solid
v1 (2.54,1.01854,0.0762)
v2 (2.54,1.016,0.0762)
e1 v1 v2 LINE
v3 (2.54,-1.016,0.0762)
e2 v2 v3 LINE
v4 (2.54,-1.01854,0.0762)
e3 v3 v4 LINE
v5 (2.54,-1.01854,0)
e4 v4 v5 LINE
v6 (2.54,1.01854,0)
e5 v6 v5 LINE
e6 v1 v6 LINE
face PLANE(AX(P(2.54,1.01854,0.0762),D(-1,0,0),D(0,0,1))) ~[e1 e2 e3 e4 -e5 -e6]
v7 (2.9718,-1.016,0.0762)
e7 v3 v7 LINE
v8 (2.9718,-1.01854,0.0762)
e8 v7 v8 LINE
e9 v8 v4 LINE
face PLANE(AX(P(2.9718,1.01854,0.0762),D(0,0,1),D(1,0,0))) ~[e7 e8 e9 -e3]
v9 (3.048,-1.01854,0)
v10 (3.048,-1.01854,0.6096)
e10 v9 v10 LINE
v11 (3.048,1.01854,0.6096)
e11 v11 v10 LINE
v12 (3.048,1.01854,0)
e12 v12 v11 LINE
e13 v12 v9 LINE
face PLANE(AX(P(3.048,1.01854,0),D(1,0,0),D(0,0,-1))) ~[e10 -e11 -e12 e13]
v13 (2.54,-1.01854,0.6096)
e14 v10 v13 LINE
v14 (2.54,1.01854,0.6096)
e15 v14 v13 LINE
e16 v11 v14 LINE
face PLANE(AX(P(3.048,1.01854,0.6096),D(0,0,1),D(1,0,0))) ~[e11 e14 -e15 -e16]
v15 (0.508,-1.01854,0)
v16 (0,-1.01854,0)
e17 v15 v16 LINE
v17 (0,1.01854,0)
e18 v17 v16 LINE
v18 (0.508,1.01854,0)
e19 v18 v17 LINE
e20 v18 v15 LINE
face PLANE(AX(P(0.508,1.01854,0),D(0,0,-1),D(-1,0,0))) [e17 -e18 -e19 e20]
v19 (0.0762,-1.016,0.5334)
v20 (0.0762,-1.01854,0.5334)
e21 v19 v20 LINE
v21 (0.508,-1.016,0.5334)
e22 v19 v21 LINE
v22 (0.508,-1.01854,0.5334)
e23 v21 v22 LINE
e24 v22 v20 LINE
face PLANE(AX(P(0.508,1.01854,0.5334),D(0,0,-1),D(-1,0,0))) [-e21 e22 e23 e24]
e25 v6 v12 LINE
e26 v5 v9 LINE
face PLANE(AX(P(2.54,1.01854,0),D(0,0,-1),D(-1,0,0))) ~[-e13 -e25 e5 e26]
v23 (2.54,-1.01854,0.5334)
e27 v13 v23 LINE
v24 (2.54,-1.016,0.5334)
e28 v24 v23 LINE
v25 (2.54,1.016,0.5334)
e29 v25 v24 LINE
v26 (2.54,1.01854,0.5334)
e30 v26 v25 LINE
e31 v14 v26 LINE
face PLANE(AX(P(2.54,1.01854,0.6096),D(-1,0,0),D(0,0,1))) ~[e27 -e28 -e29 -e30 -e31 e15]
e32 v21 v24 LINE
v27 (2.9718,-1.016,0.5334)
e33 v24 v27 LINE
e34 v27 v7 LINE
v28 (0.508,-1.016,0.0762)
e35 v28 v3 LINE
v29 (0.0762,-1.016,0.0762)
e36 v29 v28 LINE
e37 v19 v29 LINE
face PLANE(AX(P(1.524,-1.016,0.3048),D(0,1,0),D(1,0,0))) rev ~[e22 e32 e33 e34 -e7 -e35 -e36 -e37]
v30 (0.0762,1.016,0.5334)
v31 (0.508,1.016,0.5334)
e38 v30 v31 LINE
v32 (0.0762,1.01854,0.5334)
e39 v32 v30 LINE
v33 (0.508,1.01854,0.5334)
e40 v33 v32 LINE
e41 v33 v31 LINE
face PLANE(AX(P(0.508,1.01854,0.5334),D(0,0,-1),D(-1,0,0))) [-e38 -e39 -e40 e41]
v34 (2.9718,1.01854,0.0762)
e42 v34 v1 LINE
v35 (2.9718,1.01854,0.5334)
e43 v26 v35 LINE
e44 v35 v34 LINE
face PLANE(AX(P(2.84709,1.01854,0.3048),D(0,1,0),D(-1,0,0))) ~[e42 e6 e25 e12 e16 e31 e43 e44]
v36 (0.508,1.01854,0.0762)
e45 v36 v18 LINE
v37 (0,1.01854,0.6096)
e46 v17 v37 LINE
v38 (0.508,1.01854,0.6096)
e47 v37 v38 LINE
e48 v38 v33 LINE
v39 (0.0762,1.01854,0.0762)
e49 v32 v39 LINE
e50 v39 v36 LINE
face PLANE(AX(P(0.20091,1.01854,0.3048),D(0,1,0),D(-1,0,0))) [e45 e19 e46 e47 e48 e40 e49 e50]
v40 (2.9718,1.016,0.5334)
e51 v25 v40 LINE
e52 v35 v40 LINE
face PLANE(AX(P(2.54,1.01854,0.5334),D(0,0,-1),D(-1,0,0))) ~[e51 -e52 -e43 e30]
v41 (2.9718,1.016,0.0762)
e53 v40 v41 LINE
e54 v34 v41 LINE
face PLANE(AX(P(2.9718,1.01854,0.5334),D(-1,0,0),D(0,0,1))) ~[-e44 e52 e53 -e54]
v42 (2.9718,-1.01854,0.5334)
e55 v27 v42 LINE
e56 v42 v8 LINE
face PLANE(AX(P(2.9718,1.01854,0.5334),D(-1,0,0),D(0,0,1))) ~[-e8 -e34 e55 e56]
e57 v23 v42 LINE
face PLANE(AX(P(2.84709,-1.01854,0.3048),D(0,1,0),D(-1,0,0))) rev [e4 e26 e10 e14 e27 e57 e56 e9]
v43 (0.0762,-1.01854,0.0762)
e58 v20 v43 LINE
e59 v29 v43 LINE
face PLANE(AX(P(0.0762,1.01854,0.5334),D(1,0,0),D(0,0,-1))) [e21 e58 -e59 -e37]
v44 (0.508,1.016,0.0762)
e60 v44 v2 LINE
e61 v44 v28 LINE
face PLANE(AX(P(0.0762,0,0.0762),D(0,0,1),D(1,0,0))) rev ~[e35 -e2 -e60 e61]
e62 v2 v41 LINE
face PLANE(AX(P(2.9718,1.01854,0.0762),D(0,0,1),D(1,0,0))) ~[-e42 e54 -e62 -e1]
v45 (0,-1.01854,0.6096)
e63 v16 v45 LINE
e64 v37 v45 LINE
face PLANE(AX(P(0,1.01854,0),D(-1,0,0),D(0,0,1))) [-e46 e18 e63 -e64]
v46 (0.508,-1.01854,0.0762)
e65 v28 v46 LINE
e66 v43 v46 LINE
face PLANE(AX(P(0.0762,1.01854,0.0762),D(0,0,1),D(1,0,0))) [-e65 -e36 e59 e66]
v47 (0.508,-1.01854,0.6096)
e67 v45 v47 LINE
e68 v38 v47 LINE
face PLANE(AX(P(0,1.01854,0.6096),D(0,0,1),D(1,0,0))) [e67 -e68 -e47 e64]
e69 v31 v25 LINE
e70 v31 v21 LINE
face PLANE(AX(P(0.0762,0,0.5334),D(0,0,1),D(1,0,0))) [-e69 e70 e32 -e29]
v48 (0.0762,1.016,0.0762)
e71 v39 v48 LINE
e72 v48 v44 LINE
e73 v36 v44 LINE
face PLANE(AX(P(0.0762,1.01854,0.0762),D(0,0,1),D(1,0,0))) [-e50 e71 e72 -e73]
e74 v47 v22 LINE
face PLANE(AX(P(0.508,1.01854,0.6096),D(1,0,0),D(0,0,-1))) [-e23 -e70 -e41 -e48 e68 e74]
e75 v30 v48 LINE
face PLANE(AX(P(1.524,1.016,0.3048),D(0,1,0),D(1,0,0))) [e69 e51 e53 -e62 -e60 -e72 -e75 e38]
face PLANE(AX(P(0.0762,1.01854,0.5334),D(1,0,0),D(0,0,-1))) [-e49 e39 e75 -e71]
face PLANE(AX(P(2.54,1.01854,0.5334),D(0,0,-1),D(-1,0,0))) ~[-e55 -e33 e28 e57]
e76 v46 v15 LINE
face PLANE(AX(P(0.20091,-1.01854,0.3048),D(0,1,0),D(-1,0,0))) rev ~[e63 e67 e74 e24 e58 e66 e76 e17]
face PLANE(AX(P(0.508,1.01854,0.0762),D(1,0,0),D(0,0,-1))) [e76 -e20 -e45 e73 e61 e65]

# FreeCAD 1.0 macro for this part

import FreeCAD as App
import Part
import Sketcher
from FreeCAD import Vector
Q = App.Units.Quantity

doc = App.newDocument("Part")
body = doc.addObject("PartDesign::Body", "Body")

sketch1 = body.newObject("Sketcher::SketchObject", "Sketch")
sketch1.AttachmentSupport = (doc.getObject("XZ_Plane"), [""])
sketch1.MapMode = "FlatFace"
sketch1.addGeometry([
    Part.LineSegment(Vector(0.08, 0.08, 0), Vector(0.08, 0.53, 0)),
    Part.LineSegment(Vector(0.08, 0.53, 0), Vector(2.97, 0.53, 0)),
    Part.LineSegment(Vector(2.97, 0.53, 0), Vector(2.97, 0.08, 0)),
    Part.LineSegment(Vector(2.97, 0.08, 0), Vector(0.08, 0.08, 0)),
], False)
sketch1.addConstraint([
    Sketcher.Constraint("Coincident", 0, 2, 1, 1),
    Sketcher.Constraint("Coincident", 1, 2, 2, 1),
    Sketcher.Constraint("Coincident", 2, 2, 3, 1),
    Sketcher.Constraint("Coincident", 3, 2, 0, 1),
    Sketcher.Constraint("Vertical", 0),
    Sketcher.Constraint("Horizontal", 1),
    Sketcher.Constraint("Vertical", 2),
    Sketcher.Constraint("Horizontal", 3),
    Sketcher.Constraint("DistanceX", 1, 1, 1, 2, Q("0.114 in")),
    Sketcher.Constraint("DistanceY", 0, 1, 0, 2, Q("0.018 in")),
    Sketcher.Constraint("DistanceX", -1, 1, 0, 2, Q("0.003 in")),
    Sketcher.Constraint("DistanceY", -1, 1, 0, 2, Q("0.021 in")),
])
pad1 = body.newObject("PartDesign::Pad", "Pad")
pad1.Profile = sketch1
pad1.Length = Q("0.08 in")
pad1.Midplane = True

sketch2 = body.newObject("Sketcher::SketchObject", "Sketch001")
sketch2.AttachmentSupport = (doc.getObject("XZ_Plane"), [""])
sketch2.MapMode = "FlatFace"
sketch2.AttachmentOffset = App.Placement(Vector(0, 0, -0.0401 * 25.4), App.Rotation())
sketch2.addGeometry([
    Part.LineSegment(Vector(0.51, 0.61, 0), Vector(0.51, 0.53, 0)),
    Part.LineSegment(Vector(0.51, 0.53, 0), Vector(0.08, 0.53, 0)),
    Part.LineSegment(Vector(0.08, 0.53, 0), Vector(0.08, 0.08, 0)),
    Part.LineSegment(Vector(0.08, 0.08, 0), Vector(0.51, 0.08, 0)),
    Part.LineSegment(Vector(0.51, 0.08, 0), Vector(0.51, 0, 0)),
    Part.LineSegment(Vector(0.51, 0, 0), Vector(0, 0, 0)),
    Part.LineSegment(Vector(0, 0, 0), Vector(0, 0.61, 0)),
    Part.LineSegment(Vector(0, 0.61, 0), Vector(0.51, 0.61, 0)),
], False)
sketch2.addConstraint([
    Sketcher.Constraint("Coincident", 0, 2, 1, 1),
    Sketcher.Constraint("Coincident", 1, 2, 2, 1),
    Sketcher.Constraint("Coincident", 2, 2, 3, 1),
    Sketcher.Constraint("Coincident", 3, 2, 4, 1),
    Sketcher.Constraint("Coincident", 4, 2, 5, 1),
    Sketcher.Constraint("Coincident", 5, 2, 6, 1),
    Sketcher.Constraint("Coincident", 6, 2, 7, 1),
    Sketcher.Constraint("Coincident", 7, 2, 0, 1),
    Sketcher.Constraint("Vertical", 0),
    Sketcher.Constraint("Horizontal", 1),
    Sketcher.Constraint("Vertical", 2),
    Sketcher.Constraint("Horizontal", 3),
    Sketcher.Constraint("Vertical", 4),
    Sketcher.Constraint("Horizontal", 5),
    Sketcher.Constraint("Vertical", 6),
    Sketcher.Constraint("Horizontal", 7),
    Sketcher.Constraint("Coincident", 5, 2, -1, 1),
    Sketcher.Constraint("Vertical", 0, 2, 3, 2),
    Sketcher.Constraint("Equal", 0, 4),
    Sketcher.Constraint("DistanceX", 5, 2, 5, 1, Q("0.02 in")),
    Sketcher.Constraint("DistanceX", 1, 2, 1, 1, Q("0.017 in")),
    Sketcher.Constraint("DistanceY", 0, 2, 0, 1, Q("0.003 in")),
    Sketcher.Constraint("DistanceY", 2, 2, 2, 1, Q("0.018 in")),
])
pad2 = body.newObject("PartDesign::Pad", "Pad001")
pad2.Profile = sketch2
pad2.Length = Q("0.0802 in")
doc.recompute()

datumplane = body.newObject("PartDesign::Plane", "DatumPlane")
datumplane.AttachmentSupport = (doc.getObject("YZ_Plane"), [""])
datumplane.MapMode = "FlatFace"
datumplane.AttachmentOffset = App.Placement(Vector(0, 0, 0.06 * 25.4), App.Rotation())
mirrored = body.newObject("PartDesign::Mirrored", "Mirrored")
mirrored.Originals = [pad2]
mirrored.MirrorPlane = (datumplane, [""])
body.Tip = mirrored

doc.recompute()
